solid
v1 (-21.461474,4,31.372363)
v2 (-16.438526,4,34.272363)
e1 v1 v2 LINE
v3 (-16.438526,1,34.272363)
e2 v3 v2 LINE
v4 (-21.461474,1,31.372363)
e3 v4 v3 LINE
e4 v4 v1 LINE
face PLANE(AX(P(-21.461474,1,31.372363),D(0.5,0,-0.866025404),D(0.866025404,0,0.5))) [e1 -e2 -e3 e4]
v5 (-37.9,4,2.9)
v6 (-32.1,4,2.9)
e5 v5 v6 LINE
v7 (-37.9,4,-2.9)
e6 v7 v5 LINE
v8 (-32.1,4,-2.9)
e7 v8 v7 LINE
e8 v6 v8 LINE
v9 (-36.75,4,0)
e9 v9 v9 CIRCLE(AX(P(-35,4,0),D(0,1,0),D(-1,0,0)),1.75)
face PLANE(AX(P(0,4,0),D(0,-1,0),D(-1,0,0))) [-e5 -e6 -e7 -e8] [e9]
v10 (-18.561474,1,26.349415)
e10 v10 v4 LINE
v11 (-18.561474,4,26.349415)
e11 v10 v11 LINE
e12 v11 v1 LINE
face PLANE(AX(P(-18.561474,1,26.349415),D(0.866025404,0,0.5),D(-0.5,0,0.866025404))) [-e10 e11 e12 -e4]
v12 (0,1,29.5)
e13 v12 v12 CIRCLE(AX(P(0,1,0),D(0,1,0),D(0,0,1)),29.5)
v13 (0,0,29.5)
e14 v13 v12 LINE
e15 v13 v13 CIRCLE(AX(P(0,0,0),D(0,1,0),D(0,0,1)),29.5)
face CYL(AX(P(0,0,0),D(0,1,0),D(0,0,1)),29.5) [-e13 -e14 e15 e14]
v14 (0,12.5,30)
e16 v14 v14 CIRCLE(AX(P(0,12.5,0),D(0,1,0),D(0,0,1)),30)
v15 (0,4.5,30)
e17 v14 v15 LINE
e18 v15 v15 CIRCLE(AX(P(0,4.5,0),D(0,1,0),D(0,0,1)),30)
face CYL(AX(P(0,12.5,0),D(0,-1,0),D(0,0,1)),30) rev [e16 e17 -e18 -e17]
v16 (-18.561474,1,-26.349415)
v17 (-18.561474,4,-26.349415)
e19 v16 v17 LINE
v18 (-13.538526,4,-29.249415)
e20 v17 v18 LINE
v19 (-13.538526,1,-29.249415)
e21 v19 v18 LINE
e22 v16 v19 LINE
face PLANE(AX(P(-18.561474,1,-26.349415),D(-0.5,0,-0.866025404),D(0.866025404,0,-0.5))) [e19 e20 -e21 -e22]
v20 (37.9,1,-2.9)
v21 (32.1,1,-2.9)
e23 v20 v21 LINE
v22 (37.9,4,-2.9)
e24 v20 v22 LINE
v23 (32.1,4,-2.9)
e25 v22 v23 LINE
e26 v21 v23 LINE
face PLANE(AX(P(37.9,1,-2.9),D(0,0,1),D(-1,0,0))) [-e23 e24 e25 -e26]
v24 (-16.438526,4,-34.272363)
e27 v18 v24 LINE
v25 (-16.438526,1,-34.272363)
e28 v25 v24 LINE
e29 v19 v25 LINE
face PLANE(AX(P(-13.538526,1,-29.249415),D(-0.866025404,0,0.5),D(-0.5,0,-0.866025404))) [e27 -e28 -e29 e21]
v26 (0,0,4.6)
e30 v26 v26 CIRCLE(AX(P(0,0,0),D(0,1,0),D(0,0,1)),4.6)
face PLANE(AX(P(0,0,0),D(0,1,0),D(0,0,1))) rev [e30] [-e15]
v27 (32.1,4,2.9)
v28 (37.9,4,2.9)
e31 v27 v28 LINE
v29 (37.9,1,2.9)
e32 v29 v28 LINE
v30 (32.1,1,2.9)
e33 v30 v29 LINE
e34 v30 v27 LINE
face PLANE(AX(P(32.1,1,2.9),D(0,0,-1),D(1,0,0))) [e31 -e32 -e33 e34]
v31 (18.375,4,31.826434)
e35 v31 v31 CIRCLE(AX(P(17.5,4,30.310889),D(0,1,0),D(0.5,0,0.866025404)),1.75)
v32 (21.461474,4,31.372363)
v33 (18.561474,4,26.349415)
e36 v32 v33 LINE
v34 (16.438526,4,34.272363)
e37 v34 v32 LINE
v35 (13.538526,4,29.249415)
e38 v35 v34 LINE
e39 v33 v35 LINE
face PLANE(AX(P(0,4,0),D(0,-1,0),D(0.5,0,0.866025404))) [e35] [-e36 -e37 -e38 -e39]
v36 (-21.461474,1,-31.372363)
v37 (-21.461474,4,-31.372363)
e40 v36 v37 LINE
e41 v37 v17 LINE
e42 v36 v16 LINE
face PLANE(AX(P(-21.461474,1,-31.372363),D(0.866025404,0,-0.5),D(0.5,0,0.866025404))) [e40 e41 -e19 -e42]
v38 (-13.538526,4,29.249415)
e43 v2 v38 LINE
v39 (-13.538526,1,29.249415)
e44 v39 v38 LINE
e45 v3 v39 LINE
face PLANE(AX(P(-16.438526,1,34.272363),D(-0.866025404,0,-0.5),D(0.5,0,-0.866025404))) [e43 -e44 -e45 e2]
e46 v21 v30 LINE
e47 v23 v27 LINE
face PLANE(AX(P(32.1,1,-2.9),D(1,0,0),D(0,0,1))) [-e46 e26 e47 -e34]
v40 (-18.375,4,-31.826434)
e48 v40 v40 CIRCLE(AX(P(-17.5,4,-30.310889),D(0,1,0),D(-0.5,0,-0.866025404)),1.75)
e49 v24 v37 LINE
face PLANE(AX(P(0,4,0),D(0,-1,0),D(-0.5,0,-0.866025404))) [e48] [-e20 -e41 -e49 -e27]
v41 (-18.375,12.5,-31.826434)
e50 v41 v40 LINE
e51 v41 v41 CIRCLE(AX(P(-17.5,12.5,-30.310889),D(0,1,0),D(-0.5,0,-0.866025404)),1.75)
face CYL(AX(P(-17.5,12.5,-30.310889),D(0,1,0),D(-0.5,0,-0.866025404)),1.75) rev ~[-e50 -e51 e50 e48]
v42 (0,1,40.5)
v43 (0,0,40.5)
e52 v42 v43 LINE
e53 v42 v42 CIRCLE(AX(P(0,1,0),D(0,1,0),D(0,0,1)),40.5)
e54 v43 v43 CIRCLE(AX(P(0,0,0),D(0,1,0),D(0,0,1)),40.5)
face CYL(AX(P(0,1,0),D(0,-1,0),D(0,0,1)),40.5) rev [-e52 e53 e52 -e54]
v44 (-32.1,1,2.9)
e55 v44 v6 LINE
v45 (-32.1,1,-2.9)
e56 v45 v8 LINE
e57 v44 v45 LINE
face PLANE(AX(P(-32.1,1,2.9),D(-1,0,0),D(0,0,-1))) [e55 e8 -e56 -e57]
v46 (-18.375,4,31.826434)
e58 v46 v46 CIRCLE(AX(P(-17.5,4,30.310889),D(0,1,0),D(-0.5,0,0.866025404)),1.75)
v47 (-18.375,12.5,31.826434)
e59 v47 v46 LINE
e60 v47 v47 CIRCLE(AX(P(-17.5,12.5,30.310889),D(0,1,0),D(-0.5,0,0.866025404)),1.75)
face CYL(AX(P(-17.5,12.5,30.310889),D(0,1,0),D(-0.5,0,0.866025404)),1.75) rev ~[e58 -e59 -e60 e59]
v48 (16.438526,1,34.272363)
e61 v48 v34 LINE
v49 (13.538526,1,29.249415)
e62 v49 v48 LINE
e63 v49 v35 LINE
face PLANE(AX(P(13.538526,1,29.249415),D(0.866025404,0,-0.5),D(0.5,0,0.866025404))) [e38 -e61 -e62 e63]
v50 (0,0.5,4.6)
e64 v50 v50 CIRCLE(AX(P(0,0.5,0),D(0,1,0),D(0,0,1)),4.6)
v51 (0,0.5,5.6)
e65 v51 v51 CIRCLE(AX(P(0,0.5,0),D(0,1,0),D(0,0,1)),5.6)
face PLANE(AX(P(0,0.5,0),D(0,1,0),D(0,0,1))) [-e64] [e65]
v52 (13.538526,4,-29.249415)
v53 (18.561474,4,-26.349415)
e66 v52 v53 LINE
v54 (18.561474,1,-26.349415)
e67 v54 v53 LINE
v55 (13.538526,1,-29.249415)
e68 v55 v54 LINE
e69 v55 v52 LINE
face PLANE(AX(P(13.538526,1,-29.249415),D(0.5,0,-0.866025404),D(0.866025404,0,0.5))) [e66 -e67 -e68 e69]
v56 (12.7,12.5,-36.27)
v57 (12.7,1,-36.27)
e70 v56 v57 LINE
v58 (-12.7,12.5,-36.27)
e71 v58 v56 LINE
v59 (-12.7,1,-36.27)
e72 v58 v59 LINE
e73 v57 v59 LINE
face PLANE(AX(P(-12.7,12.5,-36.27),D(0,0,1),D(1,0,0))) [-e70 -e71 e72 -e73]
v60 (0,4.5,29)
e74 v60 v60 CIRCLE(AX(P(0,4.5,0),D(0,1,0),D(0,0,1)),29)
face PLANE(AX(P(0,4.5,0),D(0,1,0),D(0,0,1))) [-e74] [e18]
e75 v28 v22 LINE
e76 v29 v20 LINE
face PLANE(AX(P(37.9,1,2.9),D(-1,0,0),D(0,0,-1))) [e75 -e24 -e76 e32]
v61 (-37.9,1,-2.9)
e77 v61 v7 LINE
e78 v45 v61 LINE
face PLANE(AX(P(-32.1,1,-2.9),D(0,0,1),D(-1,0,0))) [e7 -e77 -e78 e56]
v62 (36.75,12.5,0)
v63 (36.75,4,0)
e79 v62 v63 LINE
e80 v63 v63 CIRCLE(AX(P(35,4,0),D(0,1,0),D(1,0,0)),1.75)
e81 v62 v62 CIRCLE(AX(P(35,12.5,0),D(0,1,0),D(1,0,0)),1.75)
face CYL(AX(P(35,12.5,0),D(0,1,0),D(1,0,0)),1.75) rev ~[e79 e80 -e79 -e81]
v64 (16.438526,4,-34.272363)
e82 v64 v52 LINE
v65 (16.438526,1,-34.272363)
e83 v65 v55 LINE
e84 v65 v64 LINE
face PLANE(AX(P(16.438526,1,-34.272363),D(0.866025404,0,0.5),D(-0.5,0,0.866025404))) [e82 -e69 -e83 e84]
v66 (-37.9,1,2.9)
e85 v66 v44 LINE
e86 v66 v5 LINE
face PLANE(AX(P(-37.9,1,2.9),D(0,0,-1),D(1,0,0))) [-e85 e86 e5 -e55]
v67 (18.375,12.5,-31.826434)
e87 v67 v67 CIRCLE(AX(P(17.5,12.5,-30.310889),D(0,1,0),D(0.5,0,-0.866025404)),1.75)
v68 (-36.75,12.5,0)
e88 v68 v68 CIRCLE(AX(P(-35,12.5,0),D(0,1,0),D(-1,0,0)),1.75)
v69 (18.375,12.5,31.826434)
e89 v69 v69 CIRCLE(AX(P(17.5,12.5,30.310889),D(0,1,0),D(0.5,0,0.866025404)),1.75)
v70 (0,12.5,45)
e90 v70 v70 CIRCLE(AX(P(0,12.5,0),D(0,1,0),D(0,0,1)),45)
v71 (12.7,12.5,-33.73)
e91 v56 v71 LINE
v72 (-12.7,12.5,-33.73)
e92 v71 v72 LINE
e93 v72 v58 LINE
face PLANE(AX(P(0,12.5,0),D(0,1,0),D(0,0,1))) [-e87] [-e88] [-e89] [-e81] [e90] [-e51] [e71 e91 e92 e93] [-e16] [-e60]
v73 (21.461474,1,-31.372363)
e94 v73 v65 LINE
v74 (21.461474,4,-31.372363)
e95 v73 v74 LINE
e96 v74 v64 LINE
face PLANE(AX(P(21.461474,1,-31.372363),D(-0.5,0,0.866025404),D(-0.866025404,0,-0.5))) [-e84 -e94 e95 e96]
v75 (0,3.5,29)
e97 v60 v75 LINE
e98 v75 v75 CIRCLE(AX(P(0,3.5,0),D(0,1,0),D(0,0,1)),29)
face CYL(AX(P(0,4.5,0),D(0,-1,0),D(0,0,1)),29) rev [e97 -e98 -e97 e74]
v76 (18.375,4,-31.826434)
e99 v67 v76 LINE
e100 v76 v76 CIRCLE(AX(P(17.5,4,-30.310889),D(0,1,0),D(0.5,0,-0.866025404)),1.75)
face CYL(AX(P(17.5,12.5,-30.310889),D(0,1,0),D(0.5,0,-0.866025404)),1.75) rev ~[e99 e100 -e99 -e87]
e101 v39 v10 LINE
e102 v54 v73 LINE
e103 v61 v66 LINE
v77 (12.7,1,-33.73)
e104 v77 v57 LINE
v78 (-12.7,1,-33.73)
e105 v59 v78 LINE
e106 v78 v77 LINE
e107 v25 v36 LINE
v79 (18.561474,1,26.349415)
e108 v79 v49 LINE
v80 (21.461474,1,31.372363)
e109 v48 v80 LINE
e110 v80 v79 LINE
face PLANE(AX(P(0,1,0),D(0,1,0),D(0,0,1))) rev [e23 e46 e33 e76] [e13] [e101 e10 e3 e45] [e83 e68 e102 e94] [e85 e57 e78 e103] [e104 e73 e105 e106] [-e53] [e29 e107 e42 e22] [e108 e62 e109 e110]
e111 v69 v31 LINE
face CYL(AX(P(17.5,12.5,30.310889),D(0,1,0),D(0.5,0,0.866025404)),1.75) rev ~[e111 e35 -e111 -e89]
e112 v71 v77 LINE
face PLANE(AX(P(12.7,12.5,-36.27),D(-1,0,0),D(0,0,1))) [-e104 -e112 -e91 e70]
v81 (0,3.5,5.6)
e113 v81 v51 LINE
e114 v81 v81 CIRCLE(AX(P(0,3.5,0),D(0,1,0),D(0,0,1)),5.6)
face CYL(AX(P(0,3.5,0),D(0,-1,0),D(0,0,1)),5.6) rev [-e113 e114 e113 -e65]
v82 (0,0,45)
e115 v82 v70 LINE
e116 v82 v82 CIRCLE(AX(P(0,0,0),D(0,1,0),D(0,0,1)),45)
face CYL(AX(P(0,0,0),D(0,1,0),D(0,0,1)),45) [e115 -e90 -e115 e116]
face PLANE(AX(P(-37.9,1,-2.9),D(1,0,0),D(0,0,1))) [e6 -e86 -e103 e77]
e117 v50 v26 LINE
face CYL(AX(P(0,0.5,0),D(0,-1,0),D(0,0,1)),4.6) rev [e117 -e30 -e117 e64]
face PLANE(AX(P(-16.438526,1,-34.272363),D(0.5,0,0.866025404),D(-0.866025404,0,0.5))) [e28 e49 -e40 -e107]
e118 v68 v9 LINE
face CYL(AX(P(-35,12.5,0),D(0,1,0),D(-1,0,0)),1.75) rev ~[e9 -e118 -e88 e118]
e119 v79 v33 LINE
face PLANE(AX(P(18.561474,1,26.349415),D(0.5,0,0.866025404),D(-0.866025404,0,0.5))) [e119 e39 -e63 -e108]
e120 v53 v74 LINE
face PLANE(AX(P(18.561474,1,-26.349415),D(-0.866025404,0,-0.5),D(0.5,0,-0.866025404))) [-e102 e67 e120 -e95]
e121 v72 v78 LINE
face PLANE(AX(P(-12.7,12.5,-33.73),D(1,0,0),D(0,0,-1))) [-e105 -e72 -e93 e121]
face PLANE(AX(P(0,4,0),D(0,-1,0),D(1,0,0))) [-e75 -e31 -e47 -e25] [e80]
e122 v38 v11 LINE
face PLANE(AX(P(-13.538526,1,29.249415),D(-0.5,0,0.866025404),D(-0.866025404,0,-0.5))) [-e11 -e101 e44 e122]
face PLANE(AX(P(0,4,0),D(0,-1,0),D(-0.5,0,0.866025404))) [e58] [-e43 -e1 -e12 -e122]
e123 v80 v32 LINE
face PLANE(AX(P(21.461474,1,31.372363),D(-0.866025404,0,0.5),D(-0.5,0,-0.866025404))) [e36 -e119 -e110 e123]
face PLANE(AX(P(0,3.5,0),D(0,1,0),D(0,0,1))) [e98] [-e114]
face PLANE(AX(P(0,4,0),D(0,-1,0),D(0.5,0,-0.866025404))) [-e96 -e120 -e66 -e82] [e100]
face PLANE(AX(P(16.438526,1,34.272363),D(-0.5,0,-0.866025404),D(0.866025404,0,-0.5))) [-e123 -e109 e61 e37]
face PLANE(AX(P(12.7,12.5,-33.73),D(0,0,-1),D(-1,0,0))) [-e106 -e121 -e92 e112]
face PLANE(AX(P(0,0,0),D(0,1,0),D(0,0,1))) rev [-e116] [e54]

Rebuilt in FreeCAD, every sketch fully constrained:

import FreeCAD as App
import Part
import Sketcher


def add_polygon(sketch, points):
    """Adds a closed chain of lines whose ends are joined by coincident constraints."""
    first, n = sketch.GeometryCount, len(points)
    for a, b in zip(points, points[1:] + points[:1]):
        sketch.addGeometry(Part.LineSegment(App.Vector(*a, 0), App.Vector(*b, 0)), False)
    for i in range(n):
        sketch.addConstraint(Sketcher.Constraint("Coincident", first + i, 2, first + (i + 1) % n, 1))

doc = App.newDocument("Part")
params = doc.addObject("Spreadsheet::Sheet", "Params")
for row, (alias, value) in enumerate([
    ("sketch1_width", "1 mm"),
    ("sketch1_width2", "3 mm"),
    ("sketch1_width3", "8 mm"),
    ("sketch1_width4", "0.5 mm"),
    ("revolution_angle", "360 deg"),
    ("sketch2_diameter", "3.5 mm"),
    ("sketch3_width", "5.8 mm"),
    ("pocket2_length", "3 mm"),
    ("sketch4_width", "25.4 mm"),
    ("sketch4_height", "2.54 mm"),
], start=1):
    params.set(f"A{row}", alias)
    params.set(f"B{row}", "=" + value)
    params.setAlias(f"B{row}", alias)

body = doc.addObject("PartDesign::Body", "Body")

sketch1 = doc.addObject("Sketcher::SketchObject", "Sketch")
body.addObject(sketch1)
sketch1.AttachmentSupport = (doc.YZ_Plane, [""])
sketch1.MapMode = "FlatFace"
add_polygon(sketch1, [(1, 29.5), (0, 29.5), (0, 4.6), (0.5, 4.6), (0.5, 5.6), (3.5, 5.6), (3.5, 29), (4.5, 29), (4.5, 30), (12.5, 30), (12.5, 45), (0, 45), (0, 40.5), (1, 40.5)])
sketch1.addConstraint([
    Sketcher.Constraint("Horizontal", 0),
    Sketcher.Constraint("Vertical", 1),
    Sketcher.Constraint("Horizontal", 2),
    Sketcher.Constraint("Vertical", 3),
    Sketcher.Constraint("Horizontal", 4),
    Sketcher.Constraint("Vertical", 5),
    Sketcher.Constraint("Horizontal", 6),
    Sketcher.Constraint("Vertical", 7),
    Sketcher.Constraint("Horizontal", 8),
    Sketcher.Constraint("Vertical", 9),
    Sketcher.Constraint("Horizontal", 10),
    Sketcher.Constraint("Vertical", 11),
    Sketcher.Constraint("Horizontal", 12),
    Sketcher.Constraint("Vertical", 13),
    Sketcher.Constraint("PointOnObject", 0, 2, -2),
    Sketcher.Constraint("PointOnObject", 10, 2, -2),
    Sketcher.Constraint("Equal", 0, 6),
    Sketcher.Constraint("Equal", 12, 3),
    Sketcher.Constraint("Equal", 3, 7),
    Sketcher.Constraint("DistanceX", 0, 2, 0, 1, 1.0),
    Sketcher.Constraint("DistanceX", 4, 1, 4, 2, 3.0),
    Sketcher.Constraint("DistanceX", 8, 1, 8, 2, 8.0),
    Sketcher.Constraint("DistanceX", 2, 1, 2, 2, 0.5),
    Sketcher.Constraint("DistanceY", -1, 1, 7, 2, 30.0),
    Sketcher.Constraint("DistanceY", -1, 1, 9, 2, 45.0),
    Sketcher.Constraint("DistanceY", -1, 1, 0, 2, 29.5),
    Sketcher.Constraint("DistanceY", -1, 1, 3, 2, 5.6),
    Sketcher.Constraint("DistanceY", -1, 1, 11, 2, 40.5),
])
sketch1.setExpression("Constraints[33]", "Params.sketch1_width")
sketch1.setExpression("Constraints[34]", "Params.sketch1_width2")
sketch1.setExpression("Constraints[35]", "Params.sketch1_width3")
sketch1.setExpression("Constraints[36]", "Params.sketch1_width4")
revolution = doc.addObject("PartDesign::Revolution", "Revolution")
body.addObject(revolution)
revolution.Profile = sketch1
revolution.ReferenceAxis = (sketch1, ["H_Axis"])
revolution.setExpression("Angle", "Params.revolution_angle")

sketch2 = doc.addObject("Sketcher::SketchObject", "Sketch001")
body.addObject(sketch2)
sketch2.AttachmentSupport = (doc.XZ_Plane, [""])
sketch2.MapMode = "FlatFace"
sketch2.AttachmentOffset = App.Placement(App.Vector(0, 0, -12.5), App.Rotation())
sketch2.addGeometry(Part.Circle(App.Vector(35, 0, 0), App.Vector(0, 0, 1), 1.8), False)
sketch2.addConstraint([
    Sketcher.Constraint("PointOnObject", 0, 3, -1),
    Sketcher.Constraint("Diameter", 0, 3.5),
    Sketcher.Constraint("DistanceX", -1, 1, 0, 3, 35.0),
])
sketch2.setExpression("Constraints[1]", "Params.sketch2_diameter")
pocket1 = doc.addObject("PartDesign::Pocket", "Pocket")
body.addObject(pocket1)
pocket1.Profile = sketch2
pocket1.Type = "ThroughAll"
pocket1.Reversed = True

sketch3 = doc.addObject("Sketcher::SketchObject", "Sketch002")
body.addObject(sketch3)
sketch3.AttachmentSupport = (doc.XZ_Plane, [""])
sketch3.MapMode = "FlatFace"
sketch3.AttachmentOffset = App.Placement(App.Vector(0, 0, -1), App.Rotation())
add_polygon(sketch3, [(38, 3), (32, 3), (32, -3), (38, -3)])
sketch3.addConstraint([
    Sketcher.Constraint("Horizontal", 0),
    Sketcher.Constraint("Vertical", 1),
    Sketcher.Constraint("Horizontal", 2),
    Sketcher.Constraint("Vertical", 3),
    Sketcher.Constraint("Equal", 2, 1),
    Sketcher.Constraint("DistanceX", 0, 2, 0, 1, 5.8),
    Sketcher.Constraint("DistanceX", -1, 1, 0, 2, 32.1),
    Sketcher.Constraint("DistanceY", -1, 1, 0, 2, 2.9),
])
sketch3.setExpression("Constraints[9]", "Params.sketch3_width")
pocket2 = doc.addObject("PartDesign::Pocket", "Pocket001")
body.addObject(pocket2)
pocket2.Profile = sketch3
pocket2.setExpression("Length", "Params.pocket2_length")
doc.recompute()

polarpattern = doc.addObject("PartDesign::PolarPattern", "PolarPattern")
body.addObject(polarpattern)
polarpattern.Originals = [pocket2, pocket1]
polarpattern.Axis = (doc.Y_Axis, [""])
polarpattern.Angle = 360
polarpattern.Occurrences = 6
body.Tip = polarpattern

sketch4 = doc.addObject("Sketcher::SketchObject", "Sketch003")
body.addObject(sketch4)
sketch4.AttachmentSupport = (doc.XZ_Plane, [""])
sketch4.MapMode = "FlatFace"
sketch4.AttachmentOffset = App.Placement(App.Vector(0, 0, -12.5), App.Rotation())
add_polygon(sketch4, [(12.7, -36.3), (-12.7, -36.3), (-12.7, -33.7), (12.7, -33.7)])
sketch4.addConstraint([
    Sketcher.Constraint("Horizontal", 0),
    Sketcher.Constraint("Vertical", 1),
    Sketcher.Constraint("Horizontal", 2),
    Sketcher.Constraint("Vertical", 3),
    Sketcher.Constraint("DistanceX", 0, 2, 0, 1, 25.4),
    Sketcher.Constraint("DistanceY", 1, 1, 1, 2, 2.54),
    Sketcher.Constraint("DistanceX", 0, 2, -1, 1, 12.7),
    Sketcher.Constraint("DistanceY", 0, 2, -1, 1, 36.27),
])
sketch4.setExpression("Constraints[8]", "Params.sketch4_width")
sketch4.setExpression("Constraints[9]", "Params.sketch4_height")
pocket3 = doc.addObject("PartDesign::Pocket", "Pocket002")
body.addObject(pocket3)
pocket3.Profile = sketch4
pocket3.Type = "ThroughAll"
pocket3.Reversed = True

doc.recompute()
